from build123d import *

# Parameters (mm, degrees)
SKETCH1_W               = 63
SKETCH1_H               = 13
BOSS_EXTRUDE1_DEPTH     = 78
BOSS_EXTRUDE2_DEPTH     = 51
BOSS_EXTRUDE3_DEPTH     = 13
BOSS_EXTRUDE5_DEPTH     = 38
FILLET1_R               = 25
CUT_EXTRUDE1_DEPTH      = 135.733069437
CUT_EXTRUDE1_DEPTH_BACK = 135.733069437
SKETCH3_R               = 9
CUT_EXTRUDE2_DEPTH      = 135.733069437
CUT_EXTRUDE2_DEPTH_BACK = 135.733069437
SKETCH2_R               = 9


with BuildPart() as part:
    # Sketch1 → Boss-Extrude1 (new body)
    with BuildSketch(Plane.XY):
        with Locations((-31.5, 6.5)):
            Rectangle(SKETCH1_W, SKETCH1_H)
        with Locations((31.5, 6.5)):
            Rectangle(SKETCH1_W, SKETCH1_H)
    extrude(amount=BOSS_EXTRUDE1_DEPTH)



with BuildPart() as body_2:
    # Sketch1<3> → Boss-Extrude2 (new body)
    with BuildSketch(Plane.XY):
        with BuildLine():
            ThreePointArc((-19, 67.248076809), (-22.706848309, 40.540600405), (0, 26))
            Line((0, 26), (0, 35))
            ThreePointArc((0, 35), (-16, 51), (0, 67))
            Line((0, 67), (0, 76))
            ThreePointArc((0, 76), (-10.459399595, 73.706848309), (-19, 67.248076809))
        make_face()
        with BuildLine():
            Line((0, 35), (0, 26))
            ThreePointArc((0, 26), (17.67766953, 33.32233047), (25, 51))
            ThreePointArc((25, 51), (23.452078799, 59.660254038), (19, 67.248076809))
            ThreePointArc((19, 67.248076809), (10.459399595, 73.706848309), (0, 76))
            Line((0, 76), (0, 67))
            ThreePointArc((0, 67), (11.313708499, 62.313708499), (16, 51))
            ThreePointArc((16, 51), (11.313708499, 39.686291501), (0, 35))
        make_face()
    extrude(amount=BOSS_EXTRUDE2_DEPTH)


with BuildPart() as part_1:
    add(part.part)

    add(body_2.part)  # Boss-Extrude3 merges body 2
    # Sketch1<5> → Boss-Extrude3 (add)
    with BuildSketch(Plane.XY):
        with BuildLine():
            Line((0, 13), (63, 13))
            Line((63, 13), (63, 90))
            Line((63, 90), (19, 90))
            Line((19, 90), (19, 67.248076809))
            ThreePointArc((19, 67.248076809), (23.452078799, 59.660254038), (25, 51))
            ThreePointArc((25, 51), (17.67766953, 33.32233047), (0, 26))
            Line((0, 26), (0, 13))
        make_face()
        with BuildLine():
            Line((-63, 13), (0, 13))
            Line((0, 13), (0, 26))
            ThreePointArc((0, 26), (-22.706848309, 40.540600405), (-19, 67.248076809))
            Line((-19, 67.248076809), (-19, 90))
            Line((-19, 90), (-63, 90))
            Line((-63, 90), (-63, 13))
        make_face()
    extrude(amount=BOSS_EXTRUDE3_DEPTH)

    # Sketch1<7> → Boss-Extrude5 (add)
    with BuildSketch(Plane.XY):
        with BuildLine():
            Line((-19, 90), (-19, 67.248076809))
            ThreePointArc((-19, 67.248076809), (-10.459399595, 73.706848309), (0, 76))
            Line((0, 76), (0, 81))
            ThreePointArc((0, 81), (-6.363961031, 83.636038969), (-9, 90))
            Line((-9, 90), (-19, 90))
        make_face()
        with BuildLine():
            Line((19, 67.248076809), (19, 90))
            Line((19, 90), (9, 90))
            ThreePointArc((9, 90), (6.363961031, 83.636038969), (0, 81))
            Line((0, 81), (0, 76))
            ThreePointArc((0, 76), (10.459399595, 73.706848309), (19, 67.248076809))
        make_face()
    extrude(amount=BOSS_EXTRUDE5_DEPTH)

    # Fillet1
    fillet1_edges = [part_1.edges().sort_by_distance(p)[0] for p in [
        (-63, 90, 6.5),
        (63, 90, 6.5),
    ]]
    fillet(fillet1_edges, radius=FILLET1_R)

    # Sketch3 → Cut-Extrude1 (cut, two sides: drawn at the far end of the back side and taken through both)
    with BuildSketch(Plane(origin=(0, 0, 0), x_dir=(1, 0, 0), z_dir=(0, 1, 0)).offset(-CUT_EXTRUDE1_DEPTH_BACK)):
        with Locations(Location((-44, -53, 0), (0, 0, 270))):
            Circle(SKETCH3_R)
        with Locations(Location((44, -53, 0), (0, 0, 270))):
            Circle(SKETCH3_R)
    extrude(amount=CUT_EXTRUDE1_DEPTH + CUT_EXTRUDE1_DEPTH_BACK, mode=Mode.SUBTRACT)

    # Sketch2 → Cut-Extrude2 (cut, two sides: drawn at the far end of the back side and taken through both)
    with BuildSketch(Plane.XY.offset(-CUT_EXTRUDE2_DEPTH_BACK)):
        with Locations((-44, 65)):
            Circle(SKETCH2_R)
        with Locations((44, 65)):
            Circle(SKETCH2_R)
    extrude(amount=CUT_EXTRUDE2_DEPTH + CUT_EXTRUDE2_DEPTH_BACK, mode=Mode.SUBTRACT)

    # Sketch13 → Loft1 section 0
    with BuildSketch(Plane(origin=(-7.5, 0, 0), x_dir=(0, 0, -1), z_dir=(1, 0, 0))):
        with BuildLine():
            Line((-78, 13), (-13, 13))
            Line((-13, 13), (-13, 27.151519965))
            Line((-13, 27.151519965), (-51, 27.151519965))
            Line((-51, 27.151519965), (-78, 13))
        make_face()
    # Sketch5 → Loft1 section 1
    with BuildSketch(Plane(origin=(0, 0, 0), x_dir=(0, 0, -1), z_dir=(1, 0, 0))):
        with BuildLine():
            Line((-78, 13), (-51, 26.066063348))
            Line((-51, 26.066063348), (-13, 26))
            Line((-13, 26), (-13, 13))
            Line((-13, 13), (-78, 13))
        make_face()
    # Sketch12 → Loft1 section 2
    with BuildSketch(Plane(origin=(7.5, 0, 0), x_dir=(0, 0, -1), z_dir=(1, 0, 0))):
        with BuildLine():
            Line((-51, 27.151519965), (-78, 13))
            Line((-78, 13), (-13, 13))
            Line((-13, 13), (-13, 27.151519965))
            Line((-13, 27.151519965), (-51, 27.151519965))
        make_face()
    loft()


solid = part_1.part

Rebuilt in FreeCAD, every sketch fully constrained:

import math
import FreeCAD as App
import Part
import Sketcher

V = App.Vector
Q = App.Units.Quantity


def edges_at(feature, points):
    """Names of the edges that pass closest to the given points."""
    edges = feature.Shape.Edges
    near = lambda p: min(range(len(edges)), key=lambda i: edges[i].distToShape(Part.Vertex(*p))[0])
    return sorted({f"Edge{near(p) + 1}" for p in points})

doc = App.newDocument("Part")
body = doc.addObject("PartDesign::Body", "Body")

# Sketch on XY plane
sketch1 = body.newObject("Sketcher::SketchObject", "Sketch")
sketch1.AttachmentSupport = (doc.getObject("XY_Plane"), [""])
sketch1.MapMode = "FlatFace"
sketch1.addGeometry([
    Part.LineSegment(V(-63, 13, 0), V(-63, 0, 0)),
    Part.LineSegment(V(-63, 0, 0), V(63, 0, 0)),
    Part.LineSegment(V(63, 0, 0), V(63, 13, 0)),
    Part.LineSegment(V(63, 13, 0), V(-63, 13, 0)),
], False)
sketch1.addConstraint([
    Sketcher.Constraint("Coincident", 0, 2, 1, 1),
    Sketcher.Constraint("Coincident", 1, 2, 2, 1),
    Sketcher.Constraint("Coincident", 2, 2, 3, 1),
    Sketcher.Constraint("Coincident", 3, 2, 0, 1),
    Sketcher.Constraint("Vertical", 0),
    Sketcher.Constraint("Horizontal", 1),
    Sketcher.Constraint("Vertical", 2),
    Sketcher.Constraint("Horizontal", 3),
    Sketcher.Constraint("Symmetric", 0, 2, 1, 2, -1, 1),
    Sketcher.Constraint("DistanceX", 1, 1, 1, 2, Q("126 mm")),
    Sketcher.Constraint("DistanceY", 0, 2, 0, 1, Q("13 mm")),
])
pad1 = body.newObject("PartDesign::Pad", "Pad")
pad1.Profile = sketch1
pad1.Length = 78
body2 = doc.addObject("PartDesign::Body", "Body001")

# Sketch on XY plane
sketch2 = body2.newObject("Sketcher::SketchObject", "Sketch001")
sketch2.AttachmentSupport = (doc.getObject("XY_Plane001"), [""])
sketch2.MapMode = "FlatFace"
sketch2.addGeometry([
    Part.ArcOfCircle(Part.Circle(V(0, 51, 0), V(0, 0, 1), 25), math.radians(139.464198), math.radians(270)),  # 0
    Part.ArcOfCircle(Part.Circle(V(0, 51, 0), V(0, 0, 1), 25), math.radians(-90), math.radians(0)),  # 1
    Part.ArcOfCircle(Part.Circle(V(0, 51, 0), V(0, 0, 1), 25), math.radians(0), math.radians(40.535802)),  # 2
    Part.ArcOfCircle(Part.Circle(V(0, 51, 0), V(0, 0, 1), 25), math.radians(40.535802), math.radians(90)),  # 3
    Part.ArcOfCircle(Part.Circle(V(0, 51, 0), V(0, 0, 1), 25), math.radians(90), math.radians(139.464198)),  # 4
    Part.ArcOfCircle(Part.Circle(V(0, 51, 0), V(0, 0, 1), 16), math.radians(90), math.radians(270)),  # 5
    Part.ArcOfCircle(Part.Circle(V(0, 51, 0), V(0, 0, 1), 16), math.radians(0), math.radians(90)),  # 6
    Part.ArcOfCircle(Part.Circle(V(0, 51, 0), V(0, 0, 1), 16), math.radians(-90), math.radians(0)),  # 7
], False)
sketch2.addConstraint([
    Sketcher.Constraint("Tangent", 0, 2, 1, 1),
    Sketcher.Constraint("Tangent", 1, 2, 2, 1),
    Sketcher.Constraint("Tangent", 2, 2, 3, 1),
    Sketcher.Constraint("Tangent", 3, 2, 4, 1),
    Sketcher.Constraint("Tangent", 4, 2, 0, 1),
    Sketcher.Constraint("Tangent", 5, 1, 6, 2),
    Sketcher.Constraint("Tangent", 6, 1, 7, 2),
    Sketcher.Constraint("Tangent", 7, 1, 5, 2),
    Sketcher.Constraint("Coincident", 2, 3, 0, 3),
    Sketcher.Constraint("Coincident", 5, 3, 0, 3),
    Sketcher.Constraint("Symmetric", 2, 2, 4, 2, -2),
    Sketcher.Constraint("PointOnObject", 0, 2, -2),
    Sketcher.Constraint("PointOnObject", 3, 2, -2),
    Sketcher.Constraint("PointOnObject", 5, 1, -2),
    Sketcher.Constraint("PointOnObject", 7, 1, -2),
    Sketcher.Constraint("Horizontal", 7, 3, 1, 2),
    Sketcher.Constraint("Horizontal", 1, 2, 6, 1),
    Sketcher.Constraint("Radius", 0, Q("25 mm")),
    Sketcher.Constraint("Radius", 5, Q("16 mm")),
    Sketcher.Constraint("DistanceY", -1, 1, 0, 3, Q("51 mm")),
    Sketcher.Constraint("DistanceX", -1, 1, 2, 2, Q("19 mm")),
])
pad2 = body2.newObject("PartDesign::Pad", "Pad001")
pad2.Profile = sketch2
pad2.Length = 51
body.AllowCompound = True
doc.recompute()

boolean = body.newObject("PartDesign::Boolean", "Boolean")
boolean.Type = "Fuse"
boolean.addObjects([body2])

# Sketch on XY plane
sketch3 = body.newObject("Sketcher::SketchObject", "Sketch002")
sketch3.AttachmentSupport = (doc.getObject("XY_Plane"), [""])
sketch3.MapMode = "FlatFace"
sketch3.addGeometry([
    Part.LineSegment(V(63, 13, 0), V(63, 90, 0)),  # 0
    Part.LineSegment(V(63, 90, 0), V(19, 90, 0)),  # 1
    Part.LineSegment(V(19, 90, 0), V(19, 67.248077, 0)),  # 2
    Part.ArcOfCircle(Part.Circle(V(0, 51, 0), V(0, 0, 1), 25), math.radians(0), math.radians(40.535802)),  # 3
    Part.ArcOfCircle(Part.Circle(V(0, 51, 0), V(0, 0, 1), 25), math.radians(-90), math.radians(0)),  # 4
    Part.ArcOfCircle(Part.Circle(V(0, 51, 0), V(0, 0, 1), 25), math.radians(139.464198), math.radians(270)),  # 5
    Part.LineSegment(V(-19, 67.248077, 0), V(-19, 90, 0)),  # 6
    Part.LineSegment(V(-19, 90, 0), V(-63, 90, 0)),  # 7
    Part.LineSegment(V(-63, 90, 0), V(-63, 13, 0)),  # 8
    Part.LineSegment(V(-63, 13, 0), V(63, 13, 0)),  # 9
], False)
sketch3.addConstraint([
    Sketcher.Constraint("Coincident", 0, 2, 1, 1),
    Sketcher.Constraint("Coincident", 1, 2, 2, 1),
    Sketcher.Constraint("Coincident", 2, 2, 3, 2),
    Sketcher.Constraint("Tangent", 3, 1, 4, 2),
    Sketcher.Constraint("Tangent", 4, 1, 5, 2),
    Sketcher.Constraint("Coincident", 5, 1, 6, 1),
    Sketcher.Constraint("Coincident", 6, 2, 7, 1),
    Sketcher.Constraint("Coincident", 7, 2, 8, 1),
    Sketcher.Constraint("Coincident", 8, 2, 9, 1),
    Sketcher.Constraint("Coincident", 9, 2, 0, 1),
    Sketcher.Constraint("Vertical", 0),
    Sketcher.Constraint("Horizontal", 1),
    Sketcher.Constraint("Vertical", 2),
    Sketcher.Constraint("Vertical", 6),
    Sketcher.Constraint("Horizontal", 7),
    Sketcher.Constraint("Vertical", 8),
    Sketcher.Constraint("Horizontal", 9),
    Sketcher.Constraint("Coincident", 5, 3, 3, 3),
    Sketcher.Constraint("Symmetric", 2, 2, 5, 1, -2),
    Sketcher.Constraint("Symmetric", 0, 2, 7, 2, -2),
    Sketcher.Constraint("PointOnObject", 4, 1, -2),
    Sketcher.Constraint("Horizontal", 5, 3, 3, 1),
    Sketcher.Constraint("Radius", 3, Q("25 mm")),
    Sketcher.Constraint("DistanceX", 1, 2, 1, 1, Q("44 mm")),
    Sketcher.Constraint("DistanceX", 9, 1, 9, 2, Q("126 mm")),
    Sketcher.Constraint("DistanceY", 0, 1, 0, 2, Q("77 mm")),
    Sketcher.Constraint("DistanceY", -1, 1, 3, 3, Q("51 mm")),
    Sketcher.Constraint("DistanceY", -1, 1, 0, 2, Q("90 mm")),
])
pad3 = body.newObject("PartDesign::Pad", "Pad002")
pad3.Profile = sketch3
pad3.Length = 13

# Sketch on XY plane
sketch4 = body.newObject("Sketcher::SketchObject", "Sketch003")
sketch4.AttachmentSupport = (doc.getObject("XY_Plane"), [""])
sketch4.MapMode = "FlatFace"
sketch4.addGeometry([
    Part.LineSegment(V(-19, 90, 0), V(-19, 67.248077, 0)),  # 0
    Part.ArcOfCircle(Part.Circle(V(0, 51, 0), V(0, 0, 1), 25), math.radians(90), math.radians(139.464198)),  # 1
    Part.ArcOfCircle(Part.Circle(V(0, 51, 0), V(0, 0, 1), 25), math.radians(40.535802), math.radians(90)),  # 2
    Part.LineSegment(V(19, 67.248077, 0), V(19, 90, 0)),  # 3
    Part.LineSegment(V(19, 90, 0), V(9, 90, 0)),  # 4
    Part.ArcOfCircle(Part.Circle(V(0, 90, 0), V(0, 0, 1), 9), math.radians(-90), math.radians(0)),  # 5
    Part.ArcOfCircle(Part.Circle(V(0, 90, 0), V(0, 0, 1), 9), math.radians(180), math.radians(270)),  # 6
    Part.LineSegment(V(-9, 90, 0), V(-19, 90, 0)),  # 7
], False)
sketch4.addConstraint([
    Sketcher.Constraint("Coincident", 0, 2, 1, 2),
    Sketcher.Constraint("Tangent", 1, 1, 2, 2),
    Sketcher.Constraint("Coincident", 2, 1, 3, 1),
    Sketcher.Constraint("Coincident", 3, 2, 4, 1),
    Sketcher.Constraint("Coincident", 4, 2, 5, 2),
    Sketcher.Constraint("Tangent", 5, 1, 6, 2),
    Sketcher.Constraint("Coincident", 6, 1, 7, 1),
    Sketcher.Constraint("Coincident", 7, 2, 0, 1),
    Sketcher.Constraint("Vertical", 0),
    Sketcher.Constraint("Vertical", 3),
    Sketcher.Constraint("Horizontal", 4),
    Sketcher.Constraint("Horizontal", 7),
    Sketcher.Constraint("Equal", 1, 2),
    Sketcher.Constraint("Equal", 5, 6),
    Sketcher.Constraint("Symmetric", 0, 2, 2, 1, -2),
    Sketcher.Constraint("Symmetric", 4, 2, 6, 1, -2),
    Sketcher.Constraint("PointOnObject", 1, 1, -2),
    Sketcher.Constraint("PointOnObject", 5, 1, -2),
    Sketcher.Constraint("Horizontal", 6, 3, 3, 2),
    Sketcher.Constraint("Radius", 1, Q("25 mm")),
    Sketcher.Constraint("Radius", 5, Q("9 mm")),
    Sketcher.Constraint("DistanceX", 4, 2, 4, 1, Q("10 mm")),
    Sketcher.Constraint("DistanceY", -1, 1, 1, 3, Q("51 mm")),
    Sketcher.Constraint("DistanceY", -1, 1, 5, 3, Q("90 mm")),
])
pad4 = body.newObject("PartDesign::Pad", "Pad003")
pad4.Profile = sketch4
pad4.Length = 38
doc.recompute()

fillet = body.newObject("PartDesign::Fillet", "Fillet")
fillet.Base = (pad4, edges_at(pad4, [(-63, 90, 6.5), (63, 90, 6.5)]))
fillet.Radius = 25

# Sketch on XZ plane
sketch5 = body.newObject("Sketcher::SketchObject", "Sketch004")
sketch5.AttachmentSupport = (doc.getObject("XZ_Plane"), [""])
sketch5.MapMode = "FlatFace"
sketch5.addGeometry([
    Part.Circle(V(-44, 53, 0), V(0, 0, 1), 9),
    Part.Circle(V(44, 53, 0), V(0, 0, 1), 9),
], False)
sketch5.addConstraint([
    Sketcher.Constraint("Equal", 0, 1),
    Sketcher.Constraint("Symmetric", 0, 3, 1, 3, -2),
    Sketcher.Constraint("Diameter", 0, Q("18 mm")),
    Sketcher.Constraint("DistanceX", 0, 3, -1, 1, Q("44 mm")),
    Sketcher.Constraint("DistanceY", -1, 1, 0, 3, Q("53 mm")),
])
pocket1 = body.newObject("PartDesign::Pocket", "Pocket")
pocket1.Profile = sketch5
pocket1.Type = "ThroughAll"
pocket1.Midplane = True

# Sketch on XY plane
sketch6 = body.newObject("Sketcher::SketchObject", "Sketch005")
sketch6.AttachmentSupport = (doc.getObject("XY_Plane"), [""])
sketch6.MapMode = "FlatFace"
sketch6.addGeometry([
    Part.Circle(V(-44, 65, 0), V(0, 0, 1), 9),
    Part.Circle(V(44, 65, 0), V(0, 0, 1), 9),
], False)
sketch6.addConstraint([
    Sketcher.Constraint("Equal", 0, 1),
    Sketcher.Constraint("Symmetric", 0, 3, 1, 3, -2),
    Sketcher.Constraint("Diameter", 0, Q("18 mm")),
    Sketcher.Constraint("DistanceX", 0, 3, -1, 1, Q("44 mm")),
    Sketcher.Constraint("DistanceY", -1, 1, 0, 3, Q("65 mm")),
])
pocket2 = body.newObject("PartDesign::Pocket", "Pocket001")
pocket2.Profile = sketch6
pocket2.Type = "ThroughAll"
pocket2.Midplane = True

# Sketch on YZ plane
sketch7 = body.newObject("Sketcher::SketchObject", "Sketch006")
sketch7.AttachmentSupport = (doc.getObject("YZ_Plane"), [""])
sketch7.MapMode = "FlatFace"
sketch7.AttachmentOffset = App.Placement(V(0, 0, -7.5), App.Rotation())
sketch7.addGeometry([
    Part.LineSegment(V(13, 78, 0), V(13, 13, 0)),
    Part.LineSegment(V(13, 13, 0), V(27.15152, 13, 0)),
    Part.LineSegment(V(27.15152, 13, 0), V(27.15152, 51, 0)),
    Part.LineSegment(V(27.15152, 51, 0), V(13, 78, 0)),
], False)
sketch7.addConstraint([
    Sketcher.Constraint("Coincident", 0, 2, 1, 1),
    Sketcher.Constraint("Coincident", 1, 2, 2, 1),
    Sketcher.Constraint("Coincident", 2, 2, 3, 1),
    Sketcher.Constraint("Coincident", 3, 2, 0, 1),
    Sketcher.Constraint("Vertical", 0),
    Sketcher.Constraint("Horizontal", 1),
    Sketcher.Constraint("Vertical", 2),
    Sketcher.Constraint("DistanceY", 0, 2, 0, 1, Q("65 mm")),
    Sketcher.Constraint("DistanceY", 2, 1, 2, 2, Q("38 mm")),
    Sketcher.Constraint("DistanceX", -1, 1, 0, 2, Q("13 mm")),
    Sketcher.Constraint("DistanceY", -1, 1, 0, 2, Q("13 mm")),
    Sketcher.Constraint("DistanceX", 1, 1, 1, 2, Q("14.15152 mm")),
])

# Sketch on YZ plane
sketch8 = body.newObject("Sketcher::SketchObject", "Sketch007")
sketch8.AttachmentSupport = (doc.getObject("YZ_Plane"), [""])
sketch8.MapMode = "FlatFace"
sketch8.addGeometry([
    Part.LineSegment(V(26.066063, 51, 0), V(13, 78, 0)),
    Part.LineSegment(V(13, 78, 0), V(13, 13, 0)),
    Part.LineSegment(V(13, 13, 0), V(26, 13, 0)),
    Part.LineSegment(V(26, 13, 0), V(26.066063, 51, 0)),
], False)
sketch8.addConstraint([
    Sketcher.Constraint("Coincident", 0, 2, 1, 1),
    Sketcher.Constraint("Coincident", 1, 2, 2, 1),
    Sketcher.Constraint("Coincident", 2, 2, 3, 1),
    Sketcher.Constraint("Coincident", 3, 2, 0, 1),
    Sketcher.Constraint("Vertical", 1),
    Sketcher.Constraint("Horizontal", 2),
    Sketcher.Constraint("DistanceX", 2, 1, 2, 2, Q("13 mm")),
    Sketcher.Constraint("DistanceY", 1, 2, 1, 1, Q("65 mm")),
    Sketcher.Constraint("DistanceX", -1, 1, 0, 2, Q("13 mm")),
    Sketcher.Constraint("DistanceY", -1, 1, 0, 2, Q("78 mm")),
    Sketcher.Constraint("DistanceY", -1, 1, 3, 2, Q("51 mm")),
    Sketcher.Constraint("Distance", 0, Q("29.995366 mm")),
])

# Sketch on YZ plane
sketch9 = body.newObject("Sketcher::SketchObject", "Sketch008")
sketch9.AttachmentSupport = (doc.getObject("YZ_Plane"), [""])
sketch9.MapMode = "FlatFace"
sketch9.AttachmentOffset = App.Placement(V(0, 0, 7.5), App.Rotation())
sketch9.addGeometry([
    Part.LineSegment(V(27.15152, 51, 0), V(13, 78, 0)),
    Part.LineSegment(V(13, 78, 0), V(13, 13, 0)),
    Part.LineSegment(V(13, 13, 0), V(27.15152, 13, 0)),
    Part.LineSegment(V(27.15152, 13, 0), V(27.15152, 51, 0)),
], False)
sketch9.addConstraint([
    Sketcher.Constraint("Coincident", 0, 2, 1, 1),
    Sketcher.Constraint("Coincident", 1, 2, 2, 1),
    Sketcher.Constraint("Coincident", 2, 2, 3, 1),
    Sketcher.Constraint("Coincident", 3, 2, 0, 1),
    Sketcher.Constraint("Vertical", 1),
    Sketcher.Constraint("Horizontal", 2),
    Sketcher.Constraint("Vertical", 3),
    Sketcher.Constraint("DistanceY", 1, 2, 1, 1, Q("65 mm")),
    Sketcher.Constraint("DistanceY", 3, 1, 3, 2, Q("38 mm")),
    Sketcher.Constraint("DistanceX", -1, 1, 0, 2, Q("13 mm")),
    Sketcher.Constraint("DistanceY", -1, 1, 0, 2, Q("78 mm")),
    Sketcher.Constraint("DistanceX", 2, 1, 2, 2, Q("14.15152 mm")),
])

additiveloft = body.newObject("PartDesign::AdditiveLoft", "AdditiveLoft")
additiveloft.Profile = sketch7
additiveloft.Sections = [sketch8, sketch9]

doc.recompute()
